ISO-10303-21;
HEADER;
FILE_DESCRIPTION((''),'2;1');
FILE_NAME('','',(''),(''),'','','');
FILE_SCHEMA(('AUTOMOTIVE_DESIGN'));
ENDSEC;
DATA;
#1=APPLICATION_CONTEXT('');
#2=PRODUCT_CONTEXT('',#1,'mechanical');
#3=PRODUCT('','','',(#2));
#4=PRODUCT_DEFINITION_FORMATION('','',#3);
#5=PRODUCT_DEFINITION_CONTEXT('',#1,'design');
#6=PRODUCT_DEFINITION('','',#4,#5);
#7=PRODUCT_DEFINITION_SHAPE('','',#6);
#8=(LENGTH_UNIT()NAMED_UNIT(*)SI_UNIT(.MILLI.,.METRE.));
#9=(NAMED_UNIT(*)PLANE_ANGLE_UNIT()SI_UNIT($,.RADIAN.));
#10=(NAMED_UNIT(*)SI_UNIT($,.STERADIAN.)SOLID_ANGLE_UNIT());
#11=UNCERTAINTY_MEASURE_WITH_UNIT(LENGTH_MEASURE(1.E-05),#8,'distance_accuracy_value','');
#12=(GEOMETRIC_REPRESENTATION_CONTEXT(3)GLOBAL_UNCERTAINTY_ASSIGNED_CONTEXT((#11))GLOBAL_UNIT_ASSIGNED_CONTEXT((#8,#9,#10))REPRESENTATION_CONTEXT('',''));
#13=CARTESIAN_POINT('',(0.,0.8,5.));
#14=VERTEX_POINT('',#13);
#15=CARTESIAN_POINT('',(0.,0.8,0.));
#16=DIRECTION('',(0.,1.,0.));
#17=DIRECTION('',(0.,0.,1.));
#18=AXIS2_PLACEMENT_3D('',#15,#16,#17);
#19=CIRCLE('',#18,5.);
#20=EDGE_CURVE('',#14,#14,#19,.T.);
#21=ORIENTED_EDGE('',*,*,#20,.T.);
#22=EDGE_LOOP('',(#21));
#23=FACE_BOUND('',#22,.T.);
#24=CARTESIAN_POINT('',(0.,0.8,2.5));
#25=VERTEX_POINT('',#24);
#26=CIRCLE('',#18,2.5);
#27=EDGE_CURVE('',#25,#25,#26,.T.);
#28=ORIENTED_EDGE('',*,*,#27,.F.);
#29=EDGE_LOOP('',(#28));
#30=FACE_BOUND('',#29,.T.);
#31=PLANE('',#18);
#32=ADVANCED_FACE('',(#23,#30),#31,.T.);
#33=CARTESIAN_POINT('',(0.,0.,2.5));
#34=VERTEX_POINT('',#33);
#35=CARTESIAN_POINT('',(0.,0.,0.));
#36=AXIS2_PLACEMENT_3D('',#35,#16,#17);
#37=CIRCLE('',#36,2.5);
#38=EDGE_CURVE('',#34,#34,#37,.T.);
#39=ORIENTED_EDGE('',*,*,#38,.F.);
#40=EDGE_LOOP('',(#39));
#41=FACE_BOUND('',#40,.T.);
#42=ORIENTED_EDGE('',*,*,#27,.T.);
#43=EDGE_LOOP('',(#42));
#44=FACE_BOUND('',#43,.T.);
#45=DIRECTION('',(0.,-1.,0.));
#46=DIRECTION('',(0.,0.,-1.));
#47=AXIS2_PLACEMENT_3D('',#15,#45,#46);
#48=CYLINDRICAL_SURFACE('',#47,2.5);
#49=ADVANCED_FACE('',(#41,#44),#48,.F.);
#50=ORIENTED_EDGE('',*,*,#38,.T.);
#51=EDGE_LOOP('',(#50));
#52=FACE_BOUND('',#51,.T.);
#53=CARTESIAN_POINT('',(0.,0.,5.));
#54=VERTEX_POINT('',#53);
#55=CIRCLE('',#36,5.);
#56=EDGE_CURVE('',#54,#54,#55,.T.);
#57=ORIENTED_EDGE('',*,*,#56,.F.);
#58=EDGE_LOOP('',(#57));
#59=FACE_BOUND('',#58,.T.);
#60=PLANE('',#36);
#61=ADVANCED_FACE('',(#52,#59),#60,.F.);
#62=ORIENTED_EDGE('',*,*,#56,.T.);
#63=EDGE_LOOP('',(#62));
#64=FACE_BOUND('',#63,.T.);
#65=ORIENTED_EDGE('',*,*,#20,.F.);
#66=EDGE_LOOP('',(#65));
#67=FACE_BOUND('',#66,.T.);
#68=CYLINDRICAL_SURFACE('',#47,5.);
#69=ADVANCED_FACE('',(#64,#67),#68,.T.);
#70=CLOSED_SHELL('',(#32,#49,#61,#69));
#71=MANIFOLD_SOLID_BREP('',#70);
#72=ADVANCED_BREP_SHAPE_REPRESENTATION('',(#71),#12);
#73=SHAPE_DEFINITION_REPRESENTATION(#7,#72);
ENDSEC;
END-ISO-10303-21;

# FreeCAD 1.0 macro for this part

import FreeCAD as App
import Part
import Sketcher

V = App.Vector

doc = App.newDocument("Part")
body = doc.addObject("PartDesign::Body", "Body")

sketch1 = doc.addObject("Sketcher::SketchObject", "Sketch")
body.addObject(sketch1)
sketch1.AttachmentSupport = (doc.XZ_Plane, [""])
sketch1.MapMode = "FlatFace"
sketch1.addGeometry([
    Part.Circle(V(0, 0, 0), V(0, 0, 1), 5),
    Part.Circle(V(0, 0, 0), V(0, 0, 1), 2.5),
], False)
sketch1.addConstraint([
    Sketcher.Constraint("Coincident", 0, 3, -1, 1),
    Sketcher.Constraint("Coincident", 1, 3, -1, 1),
    Sketcher.Constraint("Diameter", 0, 10.0),
    Sketcher.Constraint("Diameter", 1, 5.0),
])
pad1 = doc.addObject("PartDesign::Pad", "Pad")
body.addObject(pad1)
pad1.Profile = sketch1
pad1.Length = 0.8
pad1.Reversed = True

doc.recompute()
